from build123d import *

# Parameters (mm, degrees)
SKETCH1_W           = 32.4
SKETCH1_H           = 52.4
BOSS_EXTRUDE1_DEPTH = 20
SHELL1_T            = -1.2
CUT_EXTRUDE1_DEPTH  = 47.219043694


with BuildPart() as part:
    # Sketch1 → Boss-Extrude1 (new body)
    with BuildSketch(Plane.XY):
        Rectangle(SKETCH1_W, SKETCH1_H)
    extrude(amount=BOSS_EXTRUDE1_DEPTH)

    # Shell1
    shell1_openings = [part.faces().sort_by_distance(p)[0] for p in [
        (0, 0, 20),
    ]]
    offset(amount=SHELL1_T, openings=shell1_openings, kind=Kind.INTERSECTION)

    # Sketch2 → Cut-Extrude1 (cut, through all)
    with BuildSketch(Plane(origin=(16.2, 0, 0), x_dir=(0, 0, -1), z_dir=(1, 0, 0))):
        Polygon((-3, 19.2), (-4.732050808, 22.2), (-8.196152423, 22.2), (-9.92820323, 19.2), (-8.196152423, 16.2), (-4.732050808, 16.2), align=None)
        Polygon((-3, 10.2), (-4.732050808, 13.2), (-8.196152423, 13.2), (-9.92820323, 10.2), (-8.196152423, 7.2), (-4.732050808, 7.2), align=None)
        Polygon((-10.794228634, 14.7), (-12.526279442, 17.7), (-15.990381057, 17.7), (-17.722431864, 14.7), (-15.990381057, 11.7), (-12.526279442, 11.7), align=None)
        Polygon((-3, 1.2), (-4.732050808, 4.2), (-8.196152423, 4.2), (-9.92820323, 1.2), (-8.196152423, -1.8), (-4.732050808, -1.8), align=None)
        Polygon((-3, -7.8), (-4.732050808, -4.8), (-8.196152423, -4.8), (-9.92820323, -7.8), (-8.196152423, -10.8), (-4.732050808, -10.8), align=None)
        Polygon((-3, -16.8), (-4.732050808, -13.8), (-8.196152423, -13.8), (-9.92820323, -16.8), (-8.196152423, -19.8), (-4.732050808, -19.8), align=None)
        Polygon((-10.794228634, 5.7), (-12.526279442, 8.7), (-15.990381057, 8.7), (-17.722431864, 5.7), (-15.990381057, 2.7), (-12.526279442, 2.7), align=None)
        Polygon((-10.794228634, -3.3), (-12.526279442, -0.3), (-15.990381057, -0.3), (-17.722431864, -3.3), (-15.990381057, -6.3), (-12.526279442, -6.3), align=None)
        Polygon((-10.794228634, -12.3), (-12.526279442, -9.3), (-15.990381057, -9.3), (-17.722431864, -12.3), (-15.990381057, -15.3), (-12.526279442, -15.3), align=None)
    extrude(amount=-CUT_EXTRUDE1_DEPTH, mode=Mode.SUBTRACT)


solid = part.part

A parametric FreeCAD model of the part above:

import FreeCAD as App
import Part
import Sketcher

V = App.Vector
Q = App.Units.Quantity


def faces_at(feature, points):
    """Names of the faces that lie closest to the given points."""
    faces = feature.Shape.Faces
    near = lambda p: min(range(len(faces)), key=lambda i: faces[i].distToShape(Part.Vertex(*p))[0])
    return sorted({f"Face{near(p) + 1}" for p in points})


def add_polygon(sketch, points):
    """Adds a closed chain of lines whose ends are joined by coincident constraints."""
    first, n = sketch.GeometryCount, len(points)
    for a, b in zip(points, points[1:] + points[:1]):
        sketch.addGeometry(Part.LineSegment(App.Vector(*a, 0), App.Vector(*b, 0)), False)
    for i in range(n):
        sketch.addConstraint(Sketcher.Constraint("Coincident", first + i, 2, first + (i + 1) % n, 1))

doc = App.newDocument("Part")
body = doc.addObject("PartDesign::Body", "Body")

# Sketch on XY plane
sketch1 = body.newObject("Sketcher::SketchObject", "Sketch")
sketch1.AttachmentSupport = (doc.getObject("XY_Plane"), [""])
sketch1.MapMode = "FlatFace"
add_polygon(sketch1, [(-16.2, 26.2), (-16.2, -26.2), (16.2, -26.2), (16.2, 26.2)])  # lines 0-3
sketch1.addConstraint(Sketcher.Constraint("Vertical", 0))
sketch1.addConstraint(Sketcher.Constraint("Horizontal", 1))
sketch1.addConstraint(Sketcher.Constraint("Vertical", 2))
sketch1.addConstraint(Sketcher.Constraint("Horizontal", 3))
sketch1.addConstraint(Sketcher.Constraint("Symmetric", 0, 2, 2, 2, -1, 1))
sketch1.addConstraint(Sketcher.Constraint("DistanceX", 1, 1, 1, 2, Q("32.4 mm")))
sketch1.addConstraint(Sketcher.Constraint("DistanceY", 0, 2, 0, 1, Q("52.4 mm")))
pad1 = body.newObject("PartDesign::Pad", "Pad")
pad1.Profile = sketch1
pad1.Length = 20
doc.recompute()

thickness = body.newObject("PartDesign::Thickness", "Thickness")
thickness.Base = (pad1, faces_at(pad1, [(0, 0, 20)]))
thickness.Value = 1.2
thickness.Reversed = True
thickness.Join = "Intersection"

# Sketch on YZ plane
sketch2 = body.newObject("Sketcher::SketchObject", "Sketch001")
sketch2.AttachmentSupport = (doc.getObject("YZ_Plane"), [""])
sketch2.MapMode = "FlatFace"
sketch2.AttachmentOffset = App.Placement(V(0, 0, 16.2), App.Rotation())
add_polygon(sketch2, [(19.2, 3), (22.2, 4.732051), (22.2, 8.196152), (19.2, 9.928203), (16.2, 8.196152), (16.2, 4.732051)])  # lines 0-5
add_polygon(sketch2, [(10.2, 3), (13.2, 4.732051), (13.2, 8.196152), (10.2, 9.928203), (7.2, 8.196152), (7.2, 4.732051)])  # lines 6-11
add_polygon(sketch2, [(14.7, 10.794229), (17.7, 12.526279), (17.7, 15.990381), (14.7, 17.722432), (11.7, 15.990381), (11.7, 12.526279)])  # lines 12-17
add_polygon(sketch2, [(1.2, 3), (4.2, 4.732051), (4.2, 8.196152), (1.2, 9.928203), (-1.8, 8.196152), (-1.8, 4.732051)])  # lines 18-23
add_polygon(sketch2, [(-7.8, 3), (-4.8, 4.732051), (-4.8, 8.196152), (-7.8, 9.928203), (-10.8, 8.196152), (-10.8, 4.732051)])  # lines 24-29
add_polygon(sketch2, [(-16.8, 3), (-13.8, 4.732051), (-13.8, 8.196152), (-16.8, 9.928203), (-19.8, 8.196152), (-19.8, 4.732051)])  # lines 30-35
add_polygon(sketch2, [(5.7, 10.794229), (8.7, 12.526279), (8.7, 15.990381), (5.7, 17.722432), (2.7, 15.990381), (2.7, 12.526279)])  # lines 36-41
add_polygon(sketch2, [(-3.3, 10.794229), (-0.3, 12.526279), (-0.3, 15.990381), (-3.3, 17.722432), (-6.3, 15.990381), (-6.3, 12.526279)])  # lines 42-47
add_polygon(sketch2, [(-12.3, 10.794229), (-9.3, 12.526279), (-9.3, 15.990381), (-12.3, 17.722432), (-15.3, 15.990381), (-15.3, 12.526279)])  # lines 48-53
sketch2.addConstraint(Sketcher.Constraint("Vertical", 1))
sketch2.addConstraint(Sketcher.Constraint("Vertical", 4))
sketch2.addConstraint(Sketcher.Constraint("Vertical", 7))
sketch2.addConstraint(Sketcher.Constraint("Vertical", 10))
sketch2.addConstraint(Sketcher.Constraint("Vertical", 13))
sketch2.addConstraint(Sketcher.Constraint("Vertical", 16))
sketch2.addConstraint(Sketcher.Constraint("Vertical", 19))
sketch2.addConstraint(Sketcher.Constraint("Vertical", 22))
sketch2.addConstraint(Sketcher.Constraint("Vertical", 25))
sketch2.addConstraint(Sketcher.Constraint("Vertical", 28))
sketch2.addConstraint(Sketcher.Constraint("Vertical", 31))
sketch2.addConstraint(Sketcher.Constraint("Vertical", 34))
sketch2.addConstraint(Sketcher.Constraint("Vertical", 37))
sketch2.addConstraint(Sketcher.Constraint("Vertical", 40))
sketch2.addConstraint(Sketcher.Constraint("Vertical", 43))
sketch2.addConstraint(Sketcher.Constraint("Vertical", 46))
sketch2.addConstraint(Sketcher.Constraint("Vertical", 49))
sketch2.addConstraint(Sketcher.Constraint("Vertical", 52))
sketch2.addConstraint(Sketcher.Constraint("Parallel", 0, 3))
sketch2.addConstraint(Sketcher.Constraint("Parallel", 2, 5))
sketch2.addConstraint(Sketcher.Constraint("Parallel", 3, 6))
sketch2.addConstraint(Sketcher.Constraint("Parallel", 5, 8))
sketch2.addConstraint(Sketcher.Constraint("Parallel", 6, 9))
sketch2.addConstraint(Sketcher.Constraint("Parallel", 8, 11))
sketch2.addConstraint(Sketcher.Constraint("Parallel", 9, 12))
sketch2.addConstraint(Sketcher.Constraint("Parallel", 11, 14))
sketch2.addConstraint(Sketcher.Constraint("Parallel", 12, 15))
sketch2.addConstraint(Sketcher.Constraint("Parallel", 14, 17))
sketch2.addConstraint(Sketcher.Constraint("Parallel", 15, 18))
sketch2.addConstraint(Sketcher.Constraint("Parallel", 17, 20))
sketch2.addConstraint(Sketcher.Constraint("Parallel", 18, 21))
sketch2.addConstraint(Sketcher.Constraint("Parallel", 20, 23))
sketch2.addConstraint(Sketcher.Constraint("Parallel", 21, 24))
sketch2.addConstraint(Sketcher.Constraint("Parallel", 23, 26))
sketch2.addConstraint(Sketcher.Constraint("Parallel", 24, 27))
sketch2.addConstraint(Sketcher.Constraint("Parallel", 26, 29))
sketch2.addConstraint(Sketcher.Constraint("Parallel", 27, 30))
sketch2.addConstraint(Sketcher.Constraint("Parallel", 29, 32))
sketch2.addConstraint(Sketcher.Constraint("Parallel", 30, 33))
sketch2.addConstraint(Sketcher.Constraint("Parallel", 32, 35))
sketch2.addConstraint(Sketcher.Constraint("Parallel", 33, 36))
sketch2.addConstraint(Sketcher.Constraint("Parallel", 35, 38))
sketch2.addConstraint(Sketcher.Constraint("Parallel", 36, 39))
sketch2.addConstraint(Sketcher.Constraint("Parallel", 38, 41))
sketch2.addConstraint(Sketcher.Constraint("Parallel", 39, 42))
sketch2.addConstraint(Sketcher.Constraint("Parallel", 41, 44))
sketch2.addConstraint(Sketcher.Constraint("Parallel", 42, 45))
sketch2.addConstraint(Sketcher.Constraint("Parallel", 44, 47))
sketch2.addConstraint(Sketcher.Constraint("Parallel", 45, 48))
sketch2.addConstraint(Sketcher.Constraint("Parallel", 47, 50))
sketch2.addConstraint(Sketcher.Constraint("Parallel", 48, 51))
sketch2.addConstraint(Sketcher.Constraint("Parallel", 50, 53))
sketch2.addConstraint(Sketcher.Constraint("Horizontal", 1, 2, 3, 2))
sketch2.addConstraint(Sketcher.Constraint("Horizontal", 0, 2, 4, 2))
sketch2.addConstraint(Sketcher.Constraint("Horizontal", 4, 2, 6, 2))
sketch2.addConstraint(Sketcher.Constraint("Horizontal", 3, 2, 7, 2))
sketch2.addConstraint(Sketcher.Constraint("Horizontal", 2, 2, 8, 2))
sketch2.addConstraint(Sketcher.Constraint("Horizontal", 7, 2, 9, 2))
sketch2.addConstraint(Sketcher.Constraint("Horizontal", 6, 2, 10, 2))
sketch2.addConstraint(Sketcher.Constraint("Horizontal", 13, 2, 15, 2))
sketch2.addConstraint(Sketcher.Constraint("Horizontal", 12, 2, 16, 2))
sketch2.addConstraint(Sketcher.Constraint("Horizontal", 10, 2, 18, 2))
sketch2.addConstraint(Sketcher.Constraint("Horizontal", 9, 2, 19, 2))
sketch2.addConstraint(Sketcher.Constraint("Horizontal", 8, 2, 20, 2))
sketch2.addConstraint(Sketcher.Constraint("Horizontal", 19, 2, 21, 2))
sketch2.addConstraint(Sketcher.Constraint("Horizontal", 18, 2, 22, 2))
sketch2.addConstraint(Sketcher.Constraint("Horizontal", 22, 2, 24, 2))
sketch2.addConstraint(Sketcher.Constraint("Horizontal", 21, 2, 25, 2))
sketch2.addConstraint(Sketcher.Constraint("Horizontal", 20, 2, 26, 2))
sketch2.addConstraint(Sketcher.Constraint("Horizontal", 25, 2, 27, 2))
sketch2.addConstraint(Sketcher.Constraint("Horizontal", 24, 2, 28, 2))
sketch2.addConstraint(Sketcher.Constraint("Horizontal", 28, 2, 30, 2))
sketch2.addConstraint(Sketcher.Constraint("Horizontal", 27, 2, 31, 2))
sketch2.addConstraint(Sketcher.Constraint("Horizontal", 26, 2, 32, 2))
sketch2.addConstraint(Sketcher.Constraint("Horizontal", 31, 2, 33, 2))
sketch2.addConstraint(Sketcher.Constraint("Horizontal", 30, 2, 34, 2))
sketch2.addConstraint(Sketcher.Constraint("Horizontal", 16, 2, 36, 2))
sketch2.addConstraint(Sketcher.Constraint("Horizontal", 15, 2, 37, 2))
sketch2.addConstraint(Sketcher.Constraint("Horizontal", 14, 2, 38, 2))
sketch2.addConstraint(Sketcher.Constraint("Horizontal", 37, 2, 39, 2))
sketch2.addConstraint(Sketcher.Constraint("Horizontal", 36, 2, 40, 2))
sketch2.addConstraint(Sketcher.Constraint("Horizontal", 40, 2, 42, 2))
sketch2.addConstraint(Sketcher.Constraint("Horizontal", 39, 2, 43, 2))
sketch2.addConstraint(Sketcher.Constraint("Horizontal", 38, 2, 44, 2))
sketch2.addConstraint(Sketcher.Constraint("Horizontal", 43, 2, 45, 2))
sketch2.addConstraint(Sketcher.Constraint("Horizontal", 42, 2, 46, 2))
sketch2.addConstraint(Sketcher.Constraint("Horizontal", 46, 2, 48, 2))
sketch2.addConstraint(Sketcher.Constraint("Horizontal", 45, 2, 49, 2))
sketch2.addConstraint(Sketcher.Constraint("Horizontal", 44, 2, 50, 2))
sketch2.addConstraint(Sketcher.Constraint("Horizontal", 49, 2, 51, 2))
sketch2.addConstraint(Sketcher.Constraint("Horizontal", 48, 2, 52, 2))
sketch2.addConstraint(Sketcher.Constraint("Vertical", 2, 2, 5, 2))
sketch2.addConstraint(Sketcher.Constraint("Equal", 10, 13))
sketch2.addConstraint(Sketcher.Constraint("Equal", 11, 12))
sketch2.addConstraint(Sketcher.Constraint("Angle", 0, Q("30 deg")))
sketch2.addConstraint(Sketcher.Constraint("DistanceY", -1, 1, 5, 2, Q("3 mm")))
sketch2.addConstraint(Sketcher.Constraint("DistanceX", 2, 2, 1, 2, Q("3 mm")))
sketch2.addConstraint(Sketcher.Constraint("DistanceX", 6, 2, 4, 2, Q("3 mm")))
sketch2.addConstraint(Sketcher.Constraint("DistanceX", 18, 2, 10, 2, Q("3 mm")))
sketch2.addConstraint(Sketcher.Constraint("DistanceX", 24, 2, 22, 2, Q("3 mm")))
sketch2.addConstraint(Sketcher.Constraint("DistanceX", 30, 2, 28, 2, Q("3 mm")))
sketch2.addConstraint(Sketcher.Constraint("DistanceX", 36, 2, 16, 2, Q("3 mm")))
sketch2.addConstraint(Sketcher.Constraint("DistanceX", 42, 2, 40, 2, Q("3 mm")))
sketch2.addConstraint(Sketcher.Constraint("DistanceX", 48, 2, 46, 2, Q("3 mm")))
sketch2.addConstraint(Sketcher.Constraint("DistanceX", -1, 1, 0, 2, Q("22.2 mm")))
sketch2.addConstraint(Sketcher.Constraint("DistanceX", -1, 1, 12, 2, Q("17.7 mm")))
sketch2.addConstraint(Sketcher.Constraint("DistanceY", 1, 1, 1, 2, Q("3.464102 mm")))
sketch2.addConstraint(Sketcher.Constraint("DistanceY", -1, 1, 12, 2, Q("12.526279 mm")))
pocket1 = body.newObject("PartDesign::Pocket", "Pocket")
pocket1.Profile = sketch2
pocket1.Type = "ThroughAll"

doc.recompute()
